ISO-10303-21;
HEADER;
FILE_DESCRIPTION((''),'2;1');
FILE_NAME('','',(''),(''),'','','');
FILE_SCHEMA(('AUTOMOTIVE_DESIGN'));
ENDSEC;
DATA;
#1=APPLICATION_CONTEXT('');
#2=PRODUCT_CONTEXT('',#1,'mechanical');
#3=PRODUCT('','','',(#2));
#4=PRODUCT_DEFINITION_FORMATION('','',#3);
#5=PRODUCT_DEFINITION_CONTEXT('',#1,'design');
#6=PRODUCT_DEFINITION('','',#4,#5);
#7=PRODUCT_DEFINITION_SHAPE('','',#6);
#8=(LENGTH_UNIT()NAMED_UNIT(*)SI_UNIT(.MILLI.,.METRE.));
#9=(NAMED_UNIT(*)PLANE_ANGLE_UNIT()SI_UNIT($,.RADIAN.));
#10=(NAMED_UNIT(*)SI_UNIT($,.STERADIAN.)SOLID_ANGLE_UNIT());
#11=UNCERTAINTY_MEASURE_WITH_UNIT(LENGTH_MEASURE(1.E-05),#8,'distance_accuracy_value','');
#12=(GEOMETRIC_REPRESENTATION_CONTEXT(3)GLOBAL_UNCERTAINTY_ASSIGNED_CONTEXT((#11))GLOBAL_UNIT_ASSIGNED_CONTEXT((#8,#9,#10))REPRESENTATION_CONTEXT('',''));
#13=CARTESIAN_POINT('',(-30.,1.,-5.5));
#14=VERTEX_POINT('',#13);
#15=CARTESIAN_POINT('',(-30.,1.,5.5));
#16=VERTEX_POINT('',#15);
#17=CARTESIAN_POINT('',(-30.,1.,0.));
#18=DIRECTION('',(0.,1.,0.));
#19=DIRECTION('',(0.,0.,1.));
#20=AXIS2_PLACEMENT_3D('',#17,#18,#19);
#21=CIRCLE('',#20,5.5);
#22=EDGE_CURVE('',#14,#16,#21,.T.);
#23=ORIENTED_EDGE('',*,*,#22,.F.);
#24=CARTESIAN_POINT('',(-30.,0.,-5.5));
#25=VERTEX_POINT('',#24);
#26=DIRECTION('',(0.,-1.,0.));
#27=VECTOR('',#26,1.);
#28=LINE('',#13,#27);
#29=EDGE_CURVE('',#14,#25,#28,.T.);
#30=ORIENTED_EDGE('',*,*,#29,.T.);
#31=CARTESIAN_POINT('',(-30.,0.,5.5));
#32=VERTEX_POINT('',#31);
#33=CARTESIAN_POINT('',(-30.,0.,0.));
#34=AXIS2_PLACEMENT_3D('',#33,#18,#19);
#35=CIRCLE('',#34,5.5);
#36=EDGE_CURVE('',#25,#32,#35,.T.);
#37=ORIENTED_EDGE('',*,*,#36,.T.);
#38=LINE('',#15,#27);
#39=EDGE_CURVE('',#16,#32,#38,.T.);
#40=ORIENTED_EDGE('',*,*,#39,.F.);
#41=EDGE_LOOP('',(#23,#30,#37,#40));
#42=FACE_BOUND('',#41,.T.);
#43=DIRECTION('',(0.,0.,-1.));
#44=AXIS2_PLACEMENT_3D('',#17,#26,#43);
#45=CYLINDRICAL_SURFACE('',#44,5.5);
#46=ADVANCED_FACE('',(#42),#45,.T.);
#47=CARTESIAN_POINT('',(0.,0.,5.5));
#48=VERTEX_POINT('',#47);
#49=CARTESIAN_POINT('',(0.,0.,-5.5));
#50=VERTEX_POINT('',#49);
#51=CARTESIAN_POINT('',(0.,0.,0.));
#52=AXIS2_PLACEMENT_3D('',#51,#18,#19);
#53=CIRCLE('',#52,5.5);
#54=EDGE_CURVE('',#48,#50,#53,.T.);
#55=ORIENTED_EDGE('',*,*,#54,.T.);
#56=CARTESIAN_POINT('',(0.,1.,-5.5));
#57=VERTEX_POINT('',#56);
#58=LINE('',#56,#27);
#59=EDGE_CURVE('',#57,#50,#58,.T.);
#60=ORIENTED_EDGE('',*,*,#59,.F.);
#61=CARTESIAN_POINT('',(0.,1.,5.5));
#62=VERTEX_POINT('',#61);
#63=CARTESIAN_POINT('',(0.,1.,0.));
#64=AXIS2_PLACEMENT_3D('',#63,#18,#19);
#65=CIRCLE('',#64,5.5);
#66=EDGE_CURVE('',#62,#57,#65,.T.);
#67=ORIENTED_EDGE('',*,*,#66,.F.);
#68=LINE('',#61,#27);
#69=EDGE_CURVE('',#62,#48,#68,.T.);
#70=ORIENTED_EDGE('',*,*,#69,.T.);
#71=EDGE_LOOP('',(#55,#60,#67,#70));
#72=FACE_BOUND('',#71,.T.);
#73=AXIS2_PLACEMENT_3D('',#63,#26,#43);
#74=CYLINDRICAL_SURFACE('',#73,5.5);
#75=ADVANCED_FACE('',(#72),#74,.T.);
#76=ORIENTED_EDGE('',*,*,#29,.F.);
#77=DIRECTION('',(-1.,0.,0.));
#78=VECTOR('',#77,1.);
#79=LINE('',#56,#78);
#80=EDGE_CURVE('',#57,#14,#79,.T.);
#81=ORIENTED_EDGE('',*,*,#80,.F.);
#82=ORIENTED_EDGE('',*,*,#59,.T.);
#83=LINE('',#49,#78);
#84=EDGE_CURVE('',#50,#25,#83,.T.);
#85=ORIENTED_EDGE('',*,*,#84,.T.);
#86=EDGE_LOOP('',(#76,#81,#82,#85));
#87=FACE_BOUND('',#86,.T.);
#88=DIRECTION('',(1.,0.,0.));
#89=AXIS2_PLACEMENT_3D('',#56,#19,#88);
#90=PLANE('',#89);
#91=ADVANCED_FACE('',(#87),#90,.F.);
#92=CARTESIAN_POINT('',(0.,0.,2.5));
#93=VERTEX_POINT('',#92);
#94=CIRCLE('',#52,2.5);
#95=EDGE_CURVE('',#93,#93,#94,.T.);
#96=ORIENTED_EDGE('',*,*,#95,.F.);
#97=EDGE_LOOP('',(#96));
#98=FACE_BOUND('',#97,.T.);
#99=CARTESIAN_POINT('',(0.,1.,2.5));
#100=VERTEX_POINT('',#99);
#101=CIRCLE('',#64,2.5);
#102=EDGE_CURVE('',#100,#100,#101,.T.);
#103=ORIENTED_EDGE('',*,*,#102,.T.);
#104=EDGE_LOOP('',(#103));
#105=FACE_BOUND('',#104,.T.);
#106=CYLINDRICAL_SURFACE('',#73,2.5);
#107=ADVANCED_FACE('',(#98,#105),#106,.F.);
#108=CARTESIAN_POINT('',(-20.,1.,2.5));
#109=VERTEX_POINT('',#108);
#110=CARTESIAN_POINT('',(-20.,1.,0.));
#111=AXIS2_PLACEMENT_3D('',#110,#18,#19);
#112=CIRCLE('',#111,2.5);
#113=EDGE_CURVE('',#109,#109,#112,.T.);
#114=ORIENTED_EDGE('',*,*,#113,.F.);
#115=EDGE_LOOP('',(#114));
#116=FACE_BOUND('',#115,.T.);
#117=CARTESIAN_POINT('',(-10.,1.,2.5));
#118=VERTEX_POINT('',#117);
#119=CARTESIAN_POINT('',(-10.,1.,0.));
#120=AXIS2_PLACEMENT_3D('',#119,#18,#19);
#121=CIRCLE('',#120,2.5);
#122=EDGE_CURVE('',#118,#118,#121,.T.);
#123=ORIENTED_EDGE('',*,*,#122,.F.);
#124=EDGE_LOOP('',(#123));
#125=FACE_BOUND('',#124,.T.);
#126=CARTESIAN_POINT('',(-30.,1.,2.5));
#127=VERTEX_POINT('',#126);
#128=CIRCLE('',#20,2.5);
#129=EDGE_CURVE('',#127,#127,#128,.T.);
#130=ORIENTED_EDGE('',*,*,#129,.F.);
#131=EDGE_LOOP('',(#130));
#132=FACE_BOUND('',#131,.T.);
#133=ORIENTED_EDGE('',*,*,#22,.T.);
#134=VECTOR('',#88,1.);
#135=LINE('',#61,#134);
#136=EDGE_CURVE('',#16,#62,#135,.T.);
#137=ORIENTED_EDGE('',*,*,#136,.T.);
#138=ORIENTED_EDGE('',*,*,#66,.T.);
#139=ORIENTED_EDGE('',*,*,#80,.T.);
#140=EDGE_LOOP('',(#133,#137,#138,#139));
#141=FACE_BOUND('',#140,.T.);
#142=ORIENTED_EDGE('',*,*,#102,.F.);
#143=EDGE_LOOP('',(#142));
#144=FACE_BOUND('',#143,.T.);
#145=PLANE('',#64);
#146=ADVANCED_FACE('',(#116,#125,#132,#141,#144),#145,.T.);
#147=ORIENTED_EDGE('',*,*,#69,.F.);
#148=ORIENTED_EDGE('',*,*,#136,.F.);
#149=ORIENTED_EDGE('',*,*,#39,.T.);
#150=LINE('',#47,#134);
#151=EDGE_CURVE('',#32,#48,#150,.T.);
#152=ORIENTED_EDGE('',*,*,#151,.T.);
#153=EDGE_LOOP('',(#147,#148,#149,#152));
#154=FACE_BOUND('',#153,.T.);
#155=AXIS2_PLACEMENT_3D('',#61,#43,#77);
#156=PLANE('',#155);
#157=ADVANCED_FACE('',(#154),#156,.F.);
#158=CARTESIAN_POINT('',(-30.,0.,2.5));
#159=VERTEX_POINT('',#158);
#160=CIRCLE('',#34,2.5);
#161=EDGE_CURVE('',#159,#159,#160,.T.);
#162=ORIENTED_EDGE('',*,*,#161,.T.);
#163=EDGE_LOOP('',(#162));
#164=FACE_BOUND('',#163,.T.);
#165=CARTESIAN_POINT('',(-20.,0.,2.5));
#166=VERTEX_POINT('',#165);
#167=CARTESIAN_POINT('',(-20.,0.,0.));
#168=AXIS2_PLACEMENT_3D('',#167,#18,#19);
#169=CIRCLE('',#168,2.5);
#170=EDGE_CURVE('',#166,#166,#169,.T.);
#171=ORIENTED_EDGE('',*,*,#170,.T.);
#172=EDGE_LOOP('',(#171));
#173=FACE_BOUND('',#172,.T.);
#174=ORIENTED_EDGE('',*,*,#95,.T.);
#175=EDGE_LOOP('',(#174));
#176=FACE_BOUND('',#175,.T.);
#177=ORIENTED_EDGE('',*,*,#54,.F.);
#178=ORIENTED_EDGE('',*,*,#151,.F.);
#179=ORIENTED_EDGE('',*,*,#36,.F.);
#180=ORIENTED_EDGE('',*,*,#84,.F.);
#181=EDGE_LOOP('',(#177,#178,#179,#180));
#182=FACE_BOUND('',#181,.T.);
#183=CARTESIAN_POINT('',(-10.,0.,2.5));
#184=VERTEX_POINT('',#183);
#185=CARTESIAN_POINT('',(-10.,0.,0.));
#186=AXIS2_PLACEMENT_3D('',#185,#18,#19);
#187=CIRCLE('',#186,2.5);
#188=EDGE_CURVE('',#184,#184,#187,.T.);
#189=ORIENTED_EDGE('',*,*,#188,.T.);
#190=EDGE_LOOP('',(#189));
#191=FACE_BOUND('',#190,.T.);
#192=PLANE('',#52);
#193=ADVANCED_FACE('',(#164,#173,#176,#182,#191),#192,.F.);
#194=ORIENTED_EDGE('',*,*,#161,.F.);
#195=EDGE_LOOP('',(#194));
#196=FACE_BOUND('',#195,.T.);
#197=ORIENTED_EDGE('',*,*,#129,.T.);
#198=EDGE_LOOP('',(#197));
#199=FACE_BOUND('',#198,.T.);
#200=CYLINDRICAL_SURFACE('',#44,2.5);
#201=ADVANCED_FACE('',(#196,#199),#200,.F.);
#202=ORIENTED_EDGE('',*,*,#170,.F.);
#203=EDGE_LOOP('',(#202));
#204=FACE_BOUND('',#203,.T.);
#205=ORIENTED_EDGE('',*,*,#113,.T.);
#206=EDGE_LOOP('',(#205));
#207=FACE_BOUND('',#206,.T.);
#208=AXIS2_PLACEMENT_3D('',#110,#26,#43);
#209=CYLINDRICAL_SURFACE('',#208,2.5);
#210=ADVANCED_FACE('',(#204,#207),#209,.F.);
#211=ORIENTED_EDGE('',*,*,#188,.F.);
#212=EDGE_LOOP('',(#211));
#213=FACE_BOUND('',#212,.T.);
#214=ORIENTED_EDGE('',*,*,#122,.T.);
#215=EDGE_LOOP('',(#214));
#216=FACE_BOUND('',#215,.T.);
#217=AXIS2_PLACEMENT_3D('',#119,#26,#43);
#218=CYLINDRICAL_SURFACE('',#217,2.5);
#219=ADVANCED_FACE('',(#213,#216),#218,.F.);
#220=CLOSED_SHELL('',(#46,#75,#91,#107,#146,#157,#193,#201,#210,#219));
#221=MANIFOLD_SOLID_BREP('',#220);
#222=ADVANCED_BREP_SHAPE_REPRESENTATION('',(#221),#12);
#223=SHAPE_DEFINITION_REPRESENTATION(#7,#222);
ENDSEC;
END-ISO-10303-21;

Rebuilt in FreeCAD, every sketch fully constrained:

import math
import FreeCAD as App
import Part
import Sketcher

doc = App.newDocument("Part")
params = doc.addObject("Spreadsheet::Sheet", "Params")
for row, (alias, value) in enumerate([
    ("sketch1_diameter", "5 mm"),
    ("sketch1_radius", "5.5 mm"),
    ("sketch1_width", "30 mm"),
    ("pad1_length", "1 mm"),
], start=1):
    params.set(f"A{row}", alias)
    params.set(f"B{row}", "=" + value)
    params.setAlias(f"B{row}", alias)

body = doc.addObject("PartDesign::Body", "Body")

sketch1 = body.newObject("Sketcher::SketchObject", "Sketch")
sketch1.AttachmentSupport = (doc.getObject("XZ_Plane"), [""])
sketch1.MapMode = "FlatFace"
sketch1.addGeometry(Part.LineSegment(App.Vector(-30, 5.5, 0), App.Vector(0, 5.5, 0)), False)
sketch1.addGeometry(Part.ArcOfCircle(Part.Circle(App.Vector(0, 0, 0), App.Vector(0, 0, 1), 5.5), math.radians(-90), math.radians(90)), False)
sketch1.addGeometry(Part.LineSegment(App.Vector(0, -5.5, 0), App.Vector(-30, -5.5, 0)), False)
sketch1.addGeometry(Part.ArcOfCircle(Part.Circle(App.Vector(-30, 0, 0), App.Vector(0, 0, 1), 5.5), math.radians(90), math.radians(270)), False)
sketch1.addGeometry(Part.Circle(App.Vector(0, 0, 0), App.Vector(0, 0, 1), 2.5), False)
sketch1.addGeometry(Part.Circle(App.Vector(-10, 0, 0), App.Vector(0, 0, 1), 2.5), False)
sketch1.addGeometry(Part.Circle(App.Vector(-20, 0, 0), App.Vector(0, 0, 1), 2.5), False)
sketch1.addGeometry(Part.Circle(App.Vector(-30, 0, 0), App.Vector(0, 0, 1), 2.5), False)
sketch1.addConstraint(Sketcher.Constraint("Tangent", 0, 2, 1, 2))
sketch1.addConstraint(Sketcher.Constraint("Tangent", 1, 1, 2, 1))
sketch1.addConstraint(Sketcher.Constraint("Tangent", 2, 2, 3, 2))
sketch1.addConstraint(Sketcher.Constraint("Tangent", 3, 1, 0, 1))
sketch1.addConstraint(Sketcher.Constraint("Horizontal", 0))
sketch1.addConstraint(Sketcher.Constraint("Horizontal", 2))
sketch1.addConstraint(Sketcher.Constraint("Coincident", 1, 3, -1, 1))
sketch1.addConstraint(Sketcher.Constraint("Coincident", 4, 3, -1, 1))
sketch1.addConstraint(Sketcher.Constraint("Coincident", 7, 3, 3, 3))
sketch1.addConstraint(Sketcher.Constraint("Equal", 4, 5))
sketch1.addConstraint(Sketcher.Constraint("Equal", 5, 6))
sketch1.addConstraint(Sketcher.Constraint("Equal", 6, 7))
sketch1.addConstraint(Sketcher.Constraint("PointOnObject", 5, 3, -1))
sketch1.addConstraint(Sketcher.Constraint("PointOnObject", 6, 3, -1))
sketch1.addConstraint(Sketcher.Constraint("Diameter", 4, 5.0))
sketch1.addConstraint(Sketcher.Constraint("Radius", 1, 5.5))
sketch1.addConstraint(Sketcher.Constraint("DistanceX", 0, 1, 0, 2, 30.0))
sketch1.addConstraint(Sketcher.Constraint("DistanceX", 5, 3, -1, 1, 10.0))
sketch1.addConstraint(Sketcher.Constraint("DistanceX", 6, 3, -1, 1, 20.0))
sketch1.setExpression("Constraints[14]", "Params.sketch1_diameter")
sketch1.setExpression("Constraints[15]", "Params.sketch1_radius")
sketch1.setExpression("Constraints[16]", "Params.sketch1_width")
pad1 = body.newObject("PartDesign::Pad", "Pad")
pad1.Profile = sketch1
pad1.setExpression("Length", "Params.pad1_length")
pad1.Reversed = True

doc.recompute()
